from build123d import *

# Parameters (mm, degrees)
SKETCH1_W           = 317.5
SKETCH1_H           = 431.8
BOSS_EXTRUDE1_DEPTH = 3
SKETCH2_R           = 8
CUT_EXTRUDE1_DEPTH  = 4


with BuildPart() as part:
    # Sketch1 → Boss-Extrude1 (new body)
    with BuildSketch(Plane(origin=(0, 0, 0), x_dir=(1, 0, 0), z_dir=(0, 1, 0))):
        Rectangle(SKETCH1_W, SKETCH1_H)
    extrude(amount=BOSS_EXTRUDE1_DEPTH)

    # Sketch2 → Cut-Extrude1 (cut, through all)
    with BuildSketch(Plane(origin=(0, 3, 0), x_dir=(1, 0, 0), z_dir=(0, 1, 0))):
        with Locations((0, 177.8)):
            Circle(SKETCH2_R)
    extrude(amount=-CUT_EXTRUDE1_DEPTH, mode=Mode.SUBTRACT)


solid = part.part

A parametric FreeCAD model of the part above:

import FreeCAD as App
import Part
import Sketcher
from FreeCAD import Vector
Q = App.Units.Quantity

doc = App.newDocument("Part")
body = doc.addObject("PartDesign::Body", "Body")

# Sketch on XZ plane
sketch1 = body.newObject("Sketcher::SketchObject", "Sketch")
sketch1.AttachmentSupport = (doc.getObject("XZ_Plane"), [""])
sketch1.MapMode = "FlatFace"
sketch1.addGeometry(Part.LineSegment(Vector(-159, -216, 0), Vector(-159, 216, 0)), False)
sketch1.addGeometry(Part.LineSegment(Vector(-159, 216, 0), Vector(159, 216, 0)), False)
sketch1.addGeometry(Part.LineSegment(Vector(159, 216, 0), Vector(159, -216, 0)), False)
sketch1.addGeometry(Part.LineSegment(Vector(159, -216, 0), Vector(-159, -216, 0)), False)
sketch1.addConstraint(Sketcher.Constraint("Coincident", 0, 2, 1, 1))
sketch1.addConstraint(Sketcher.Constraint("Coincident", 1, 2, 2, 1))
sketch1.addConstraint(Sketcher.Constraint("Coincident", 2, 2, 3, 1))
sketch1.addConstraint(Sketcher.Constraint("Coincident", 3, 2, 0, 1))
sketch1.addConstraint(Sketcher.Constraint("Vertical", 0))
sketch1.addConstraint(Sketcher.Constraint("Horizontal", 1))
sketch1.addConstraint(Sketcher.Constraint("Vertical", 2))
sketch1.addConstraint(Sketcher.Constraint("Horizontal", 3))
sketch1.addConstraint(Sketcher.Constraint("Symmetric", 0, 2, 2, 2, -1, 1))
sketch1.addConstraint(Sketcher.Constraint("DistanceX", 1, 1, 1, 2, Q("317.5 mm")))
sketch1.addConstraint(Sketcher.Constraint("DistanceY", 0, 1, 0, 2, Q("431.8 mm")))
pad1 = body.newObject("PartDesign::Pad", "Pad")
pad1.Profile = sketch1
pad1.Length = 3
pad1.Reversed = True

# Sketch on XZ plane
sketch2 = body.newObject("Sketcher::SketchObject", "Sketch001")
sketch2.AttachmentSupport = (doc.getObject("XZ_Plane"), [""])
sketch2.MapMode = "FlatFace"
sketch2.AttachmentOffset = App.Placement(Vector(0, 0, -3), App.Rotation())
sketch2.addGeometry(Part.Circle(Vector(0, -178, 0), Vector(0, 0, 1), 8), False)
sketch2.addConstraint(Sketcher.Constraint("PointOnObject", 0, 3, -2))
sketch2.addConstraint(Sketcher.Constraint("Diameter", 0, Q("16 mm")))
sketch2.addConstraint(Sketcher.Constraint("DistanceY", 0, 3, -1, 1, Q("177.8 mm")))
pocket1 = body.newObject("PartDesign::Pocket", "Pocket")
pocket1.Profile = sketch2
pocket1.Type = "ThroughAll"
pocket1.Reversed = True

doc.recompute()
